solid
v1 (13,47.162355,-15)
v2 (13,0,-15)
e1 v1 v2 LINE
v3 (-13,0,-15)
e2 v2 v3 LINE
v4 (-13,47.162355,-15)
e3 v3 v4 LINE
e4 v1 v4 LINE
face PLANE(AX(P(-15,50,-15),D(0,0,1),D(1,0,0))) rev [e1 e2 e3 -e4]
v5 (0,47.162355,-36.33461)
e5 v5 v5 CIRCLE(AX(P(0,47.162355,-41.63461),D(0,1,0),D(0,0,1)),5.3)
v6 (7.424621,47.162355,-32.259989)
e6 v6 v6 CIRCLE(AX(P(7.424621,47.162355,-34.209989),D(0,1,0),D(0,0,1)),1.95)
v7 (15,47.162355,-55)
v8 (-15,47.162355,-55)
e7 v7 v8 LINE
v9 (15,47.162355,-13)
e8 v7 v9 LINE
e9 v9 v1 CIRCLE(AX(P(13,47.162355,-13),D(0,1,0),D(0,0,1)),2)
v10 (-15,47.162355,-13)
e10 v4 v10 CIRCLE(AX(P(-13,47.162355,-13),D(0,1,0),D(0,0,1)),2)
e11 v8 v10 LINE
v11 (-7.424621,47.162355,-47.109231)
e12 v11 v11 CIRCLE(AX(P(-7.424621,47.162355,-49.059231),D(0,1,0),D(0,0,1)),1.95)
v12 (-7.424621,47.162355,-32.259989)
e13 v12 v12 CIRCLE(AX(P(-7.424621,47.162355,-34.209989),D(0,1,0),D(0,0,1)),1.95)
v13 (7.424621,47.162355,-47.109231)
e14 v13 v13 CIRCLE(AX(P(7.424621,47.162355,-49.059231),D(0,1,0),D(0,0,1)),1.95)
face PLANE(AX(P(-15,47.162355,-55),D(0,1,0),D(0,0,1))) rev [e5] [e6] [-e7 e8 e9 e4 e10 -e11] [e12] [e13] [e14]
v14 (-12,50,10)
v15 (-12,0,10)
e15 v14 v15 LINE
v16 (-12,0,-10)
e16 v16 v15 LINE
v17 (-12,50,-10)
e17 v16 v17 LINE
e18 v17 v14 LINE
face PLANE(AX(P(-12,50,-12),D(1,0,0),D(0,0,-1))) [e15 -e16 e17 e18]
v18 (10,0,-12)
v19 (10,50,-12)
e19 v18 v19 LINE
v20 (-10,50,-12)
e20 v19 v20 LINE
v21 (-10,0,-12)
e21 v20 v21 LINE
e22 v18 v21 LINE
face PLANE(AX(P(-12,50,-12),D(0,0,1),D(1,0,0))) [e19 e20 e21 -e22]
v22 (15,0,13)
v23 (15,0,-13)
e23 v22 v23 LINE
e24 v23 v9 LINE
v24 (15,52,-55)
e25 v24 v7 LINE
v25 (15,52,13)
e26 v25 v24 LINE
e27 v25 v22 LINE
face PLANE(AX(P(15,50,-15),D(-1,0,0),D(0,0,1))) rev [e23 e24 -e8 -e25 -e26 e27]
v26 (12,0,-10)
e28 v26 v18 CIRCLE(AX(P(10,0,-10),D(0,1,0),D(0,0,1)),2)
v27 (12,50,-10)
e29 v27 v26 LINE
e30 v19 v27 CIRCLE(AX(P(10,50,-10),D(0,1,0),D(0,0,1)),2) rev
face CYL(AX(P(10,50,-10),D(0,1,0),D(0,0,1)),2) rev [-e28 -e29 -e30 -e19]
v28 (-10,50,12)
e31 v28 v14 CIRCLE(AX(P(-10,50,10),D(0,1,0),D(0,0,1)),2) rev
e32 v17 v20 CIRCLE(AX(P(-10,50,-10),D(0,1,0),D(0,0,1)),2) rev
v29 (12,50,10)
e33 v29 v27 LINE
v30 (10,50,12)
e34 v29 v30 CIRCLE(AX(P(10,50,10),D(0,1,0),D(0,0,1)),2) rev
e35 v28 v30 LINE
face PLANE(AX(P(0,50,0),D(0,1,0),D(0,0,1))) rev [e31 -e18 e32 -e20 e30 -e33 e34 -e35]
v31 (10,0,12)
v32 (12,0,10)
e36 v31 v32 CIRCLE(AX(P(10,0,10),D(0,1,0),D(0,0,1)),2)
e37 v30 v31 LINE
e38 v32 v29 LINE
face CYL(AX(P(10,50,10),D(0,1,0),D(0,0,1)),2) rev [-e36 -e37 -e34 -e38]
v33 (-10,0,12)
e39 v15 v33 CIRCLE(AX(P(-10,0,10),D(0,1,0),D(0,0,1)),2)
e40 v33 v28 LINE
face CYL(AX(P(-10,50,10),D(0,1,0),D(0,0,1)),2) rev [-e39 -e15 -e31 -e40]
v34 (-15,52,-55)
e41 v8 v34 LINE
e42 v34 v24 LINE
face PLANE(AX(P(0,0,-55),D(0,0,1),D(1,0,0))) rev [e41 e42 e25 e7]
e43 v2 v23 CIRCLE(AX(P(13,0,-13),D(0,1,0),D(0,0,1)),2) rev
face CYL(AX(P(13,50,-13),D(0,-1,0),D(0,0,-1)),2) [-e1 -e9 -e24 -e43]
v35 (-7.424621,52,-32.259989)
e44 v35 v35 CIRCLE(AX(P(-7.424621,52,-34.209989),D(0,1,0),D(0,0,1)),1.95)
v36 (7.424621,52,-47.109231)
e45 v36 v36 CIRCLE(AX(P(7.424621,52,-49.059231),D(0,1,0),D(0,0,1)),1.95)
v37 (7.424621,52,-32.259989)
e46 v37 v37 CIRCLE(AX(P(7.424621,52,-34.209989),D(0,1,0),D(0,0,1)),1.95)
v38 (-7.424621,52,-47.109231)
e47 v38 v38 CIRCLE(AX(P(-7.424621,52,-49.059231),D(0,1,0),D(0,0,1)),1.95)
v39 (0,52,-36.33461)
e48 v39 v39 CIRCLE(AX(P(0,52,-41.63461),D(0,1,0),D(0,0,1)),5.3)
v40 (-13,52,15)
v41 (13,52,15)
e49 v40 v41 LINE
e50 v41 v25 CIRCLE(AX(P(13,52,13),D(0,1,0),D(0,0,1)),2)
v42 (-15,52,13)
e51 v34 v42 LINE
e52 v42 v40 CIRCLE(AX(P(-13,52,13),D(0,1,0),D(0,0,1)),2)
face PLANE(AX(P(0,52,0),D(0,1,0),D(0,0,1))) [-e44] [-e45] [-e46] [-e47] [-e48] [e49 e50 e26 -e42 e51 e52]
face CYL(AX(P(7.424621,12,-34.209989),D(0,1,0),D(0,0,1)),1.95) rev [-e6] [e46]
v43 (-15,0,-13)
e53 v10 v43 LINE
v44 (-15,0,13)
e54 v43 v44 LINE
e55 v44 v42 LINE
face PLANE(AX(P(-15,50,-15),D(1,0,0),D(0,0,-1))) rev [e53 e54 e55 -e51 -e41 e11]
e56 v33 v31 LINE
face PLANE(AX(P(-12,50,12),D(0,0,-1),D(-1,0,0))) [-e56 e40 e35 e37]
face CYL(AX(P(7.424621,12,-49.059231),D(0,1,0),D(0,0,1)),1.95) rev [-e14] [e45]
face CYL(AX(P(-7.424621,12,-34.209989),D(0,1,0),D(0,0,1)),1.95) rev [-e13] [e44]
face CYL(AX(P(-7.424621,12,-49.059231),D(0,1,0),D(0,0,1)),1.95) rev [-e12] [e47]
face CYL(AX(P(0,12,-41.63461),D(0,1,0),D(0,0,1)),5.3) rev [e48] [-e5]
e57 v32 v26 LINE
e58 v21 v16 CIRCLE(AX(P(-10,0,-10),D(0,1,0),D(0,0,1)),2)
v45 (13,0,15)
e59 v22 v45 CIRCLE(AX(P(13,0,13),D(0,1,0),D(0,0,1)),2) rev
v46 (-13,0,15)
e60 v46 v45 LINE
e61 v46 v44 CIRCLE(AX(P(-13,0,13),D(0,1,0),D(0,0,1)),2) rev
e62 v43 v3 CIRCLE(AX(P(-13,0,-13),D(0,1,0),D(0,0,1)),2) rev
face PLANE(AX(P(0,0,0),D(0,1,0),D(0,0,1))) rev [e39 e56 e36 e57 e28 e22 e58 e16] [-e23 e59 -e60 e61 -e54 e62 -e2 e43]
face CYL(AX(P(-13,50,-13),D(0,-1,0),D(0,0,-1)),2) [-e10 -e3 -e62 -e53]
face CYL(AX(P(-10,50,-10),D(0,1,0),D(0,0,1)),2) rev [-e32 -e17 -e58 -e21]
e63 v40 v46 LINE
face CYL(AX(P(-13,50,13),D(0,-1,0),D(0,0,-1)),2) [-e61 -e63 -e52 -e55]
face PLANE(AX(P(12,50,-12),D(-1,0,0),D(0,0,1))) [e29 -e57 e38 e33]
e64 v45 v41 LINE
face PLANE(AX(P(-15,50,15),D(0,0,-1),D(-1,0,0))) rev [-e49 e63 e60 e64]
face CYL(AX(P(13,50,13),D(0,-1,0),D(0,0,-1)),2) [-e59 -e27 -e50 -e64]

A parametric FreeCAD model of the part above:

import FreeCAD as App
import Part
import Sketcher
Q = App.Units.Quantity


def edges_at(feature, points):
    """Names of the edges that pass closest to the given points."""
    edges = feature.Shape.Edges
    near = lambda p: min(range(len(edges)), key=lambda i: edges[i].distToShape(Part.Vertex(*p))[0])
    return sorted({f"Edge{near(p) + 1}" for p in points})

doc = App.newDocument("Part")
body = doc.addObject("PartDesign::Body", "Body")

# Sketch on XZ plane
sketch1 = body.newObject("Sketcher::SketchObject", "Sketch")
sketch1.AttachmentSupport = (doc.getObject("XZ_Plane"), [""])
sketch1.MapMode = "FlatFace"
sketch1.addGeometry(Part.LineSegment(App.Vector(-15, -15, 0), App.Vector(-15, 15, 0)), False)
sketch1.addGeometry(Part.LineSegment(App.Vector(-15, 15, 0), App.Vector(15, 15, 0)), False)
sketch1.addGeometry(Part.LineSegment(App.Vector(15, 15, 0), App.Vector(15, -15, 0)), False)
sketch1.addGeometry(Part.LineSegment(App.Vector(15, -15, 0), App.Vector(-15, -15, 0)), False)
sketch1.addGeometry(Part.LineSegment(App.Vector(12, 12, 0), App.Vector(-12, 12, 0)), False)
sketch1.addGeometry(Part.LineSegment(App.Vector(-12, 12, 0), App.Vector(-12, -12, 0)), False)
sketch1.addGeometry(Part.LineSegment(App.Vector(-12, -12, 0), App.Vector(12, -12, 0)), False)
sketch1.addGeometry(Part.LineSegment(App.Vector(12, -12, 0), App.Vector(12, 12, 0)), False)
sketch1.addConstraint(Sketcher.Constraint("Coincident", 0, 2, 1, 1))
sketch1.addConstraint(Sketcher.Constraint("Coincident", 1, 2, 2, 1))
sketch1.addConstraint(Sketcher.Constraint("Coincident", 2, 2, 3, 1))
sketch1.addConstraint(Sketcher.Constraint("Coincident", 3, 2, 0, 1))
sketch1.addConstraint(Sketcher.Constraint("Coincident", 4, 2, 5, 1))
sketch1.addConstraint(Sketcher.Constraint("Coincident", 5, 2, 6, 1))
sketch1.addConstraint(Sketcher.Constraint("Coincident", 6, 2, 7, 1))
sketch1.addConstraint(Sketcher.Constraint("Coincident", 7, 2, 4, 1))
sketch1.addConstraint(Sketcher.Constraint("Vertical", 0))
sketch1.addConstraint(Sketcher.Constraint("Horizontal", 1))
sketch1.addConstraint(Sketcher.Constraint("Vertical", 2))
sketch1.addConstraint(Sketcher.Constraint("Horizontal", 3))
sketch1.addConstraint(Sketcher.Constraint("Horizontal", 4))
sketch1.addConstraint(Sketcher.Constraint("Vertical", 5))
sketch1.addConstraint(Sketcher.Constraint("Horizontal", 6))
sketch1.addConstraint(Sketcher.Constraint("Vertical", 7))
sketch1.addConstraint(Sketcher.Constraint("Symmetric", 0, 2, 2, 2, -1, 1))
sketch1.addConstraint(Sketcher.Constraint("Symmetric", 4, 2, 6, 2, -1, 1))
sketch1.addConstraint(Sketcher.Constraint("Equal", 3, 0))
sketch1.addConstraint(Sketcher.Constraint("Equal", 6, 5))
sketch1.addConstraint(Sketcher.Constraint("DistanceX", 1, 1, 1, 2, Q("30 mm")))
sketch1.addConstraint(Sketcher.Constraint("DistanceX", 4, 2, 4, 1, Q("24 mm")))
pad1 = body.newObject("PartDesign::Pad", "Pad")
pad1.Profile = sketch1
pad1.Length = 50
pad1.Reversed = True

# Sketch on XZ plane
sketch2 = body.newObject("Sketcher::SketchObject", "Sketch001")
sketch2.AttachmentSupport = (doc.getObject("XZ_Plane"), [""])
sketch2.MapMode = "FlatFace"
sketch2.AttachmentOffset = App.Placement(App.Vector(0, 0, -50), App.Rotation())
sketch2.addGeometry(Part.LineSegment(App.Vector(-15, -15, 0), App.Vector(-15, 15, 0)), False)
sketch2.addGeometry(Part.LineSegment(App.Vector(-15, 15, 0), App.Vector(15, 15, 0)), False)
sketch2.addGeometry(Part.LineSegment(App.Vector(15, 15, 0), App.Vector(15, -15, 0)), False)
sketch2.addGeometry(Part.LineSegment(App.Vector(15, -15, 0), App.Vector(-15, -15, 0)), False)
sketch2.addConstraint(Sketcher.Constraint("Coincident", 0, 2, 1, 1))
sketch2.addConstraint(Sketcher.Constraint("Coincident", 1, 2, 2, 1))
sketch2.addConstraint(Sketcher.Constraint("Coincident", 2, 2, 3, 1))
sketch2.addConstraint(Sketcher.Constraint("Coincident", 3, 2, 0, 1))
sketch2.addConstraint(Sketcher.Constraint("Vertical", 0))
sketch2.addConstraint(Sketcher.Constraint("Horizontal", 1))
sketch2.addConstraint(Sketcher.Constraint("Vertical", 2))
sketch2.addConstraint(Sketcher.Constraint("Horizontal", 3))
sketch2.addConstraint(Sketcher.Constraint("Symmetric", 0, 2, 2, 2, -1, 1))
sketch2.addConstraint(Sketcher.Constraint("Equal", 3, 0))
sketch2.addConstraint(Sketcher.Constraint("DistanceX", 1, 1, 1, 2, Q("30 mm")))
pad2 = body.newObject("PartDesign::Pad", "Pad001")
pad2.Profile = sketch2
pad2.Length = 2
pad2.Reversed = True

# Sketch on XY plane
sketch3 = body.newObject("Sketcher::SketchObject", "Sketch002")
sketch3.AttachmentSupport = (doc.getObject("XY_Plane"), [""])
sketch3.MapMode = "FlatFace"
sketch3.AttachmentOffset = App.Placement(App.Vector(0, 0, -15), App.Rotation())
sketch3.addGeometry(Part.LineSegment(App.Vector(15, 52, 0), App.Vector(15, 47.2, 0)), False)
sketch3.addGeometry(Part.LineSegment(App.Vector(15, 47.2, 0), App.Vector(-15, 47.2, 0)), False)
sketch3.addGeometry(Part.LineSegment(App.Vector(-15, 47.2, 0), App.Vector(-15, 52, 0)), False)
sketch3.addGeometry(Part.LineSegment(App.Vector(-15, 52, 0), App.Vector(15, 52, 0)), False)
sketch3.addConstraint(Sketcher.Constraint("Coincident", 0, 2, 1, 1))
sketch3.addConstraint(Sketcher.Constraint("Coincident", 1, 2, 2, 1))
sketch3.addConstraint(Sketcher.Constraint("Coincident", 2, 2, 3, 1))
sketch3.addConstraint(Sketcher.Constraint("Coincident", 3, 2, 0, 1))
sketch3.addConstraint(Sketcher.Constraint("Vertical", 0))
sketch3.addConstraint(Sketcher.Constraint("Horizontal", 1))
sketch3.addConstraint(Sketcher.Constraint("Vertical", 2))
sketch3.addConstraint(Sketcher.Constraint("Horizontal", 3))
sketch3.addConstraint(Sketcher.Constraint("DistanceX", 1, 2, 1, 1, Q("30 mm")))
sketch3.addConstraint(Sketcher.Constraint("DistanceX", -1, 1, 0, 2, Q("15 mm")))
sketch3.addConstraint(Sketcher.Constraint("DistanceY", -1, 1, 2, 2, Q("52 mm")))
sketch3.addConstraint(Sketcher.Constraint("DistanceY", 0, 2, 0, 1, Q("4.837645 mm")))
pad3 = body.newObject("PartDesign::Pad", "Pad002")
pad3.Profile = sketch3
pad3.Length = 40
pad3.Reversed = True

# Sketch on XZ plane
sketch4 = body.newObject("Sketcher::SketchObject", "Sketch003")
sketch4.AttachmentSupport = (doc.getObject("XZ_Plane"), [""])
sketch4.MapMode = "FlatFace"
sketch4.AttachmentOffset = App.Placement(App.Vector(0, 0, -52), App.Rotation())
sketch4.addGeometry(Part.Circle(App.Vector(0, -41.6, 0), App.Vector(0, 0, 1), 5.3), False)
sketch4.addGeometry(Part.Circle(App.Vector(7.4, -49.1, 0), App.Vector(0, 0, 1), 1.9), False)
sketch4.addGeometry(Part.Circle(App.Vector(7.4, -34.2, 0), App.Vector(0, 0, 1), 1.9), False)
sketch4.addGeometry(Part.Circle(App.Vector(-7.4, -34.2, 0), App.Vector(0, 0, 1), 1.9), False)
sketch4.addGeometry(Part.Circle(App.Vector(-7.4, -49.1, 0), App.Vector(0, 0, 1), 1.9), False)
sketch4.addConstraint(Sketcher.Constraint("Equal", 1, 2))
sketch4.addConstraint(Sketcher.Constraint("Equal", 2, 3))
sketch4.addConstraint(Sketcher.Constraint("Equal", 3, 4))
sketch4.addConstraint(Sketcher.Constraint("Symmetric", 2, 3, 3, 3, -2))
sketch4.addConstraint(Sketcher.Constraint("Symmetric", 1, 3, 4, 3, -2))
sketch4.addConstraint(Sketcher.Constraint("PointOnObject", 0, 3, -2))
sketch4.addConstraint(Sketcher.Constraint("Vertical", 1, 3, 2, 3))
sketch4.addConstraint(Sketcher.Constraint("Diameter", 0, Q("10.6 mm")))
sketch4.addConstraint(Sketcher.Constraint("Diameter", 1, Q("3.9 mm")))
sketch4.addConstraint(Sketcher.Constraint("DistanceY", 0, 3, -1, 1, Q("41.63461 mm")))
sketch4.addConstraint(Sketcher.Constraint("DistanceX", -1, 1, 1, 3, Q("7.424621 mm")))
sketch4.addConstraint(Sketcher.Constraint("DistanceY", 1, 3, -1, 1, Q("49.059231 mm")))
sketch4.addConstraint(Sketcher.Constraint("DistanceY", 2, 3, -1, 1, Q("34.209989 mm")))
pocket1 = body.newObject("PartDesign::Pocket", "Pocket")
pocket1.Profile = sketch4
pocket1.Length = 40
pocket1.Reversed = True
doc.recompute()

fillet = body.newObject("PartDesign::Fillet", "Fillet")
fillet.Base = (pocket1, edges_at(pocket1, [
    (-15, 26, 15),
    (15, 26, 15),
    (15, 23.581, -15),
    (-15, 23.581, -15),
    (-12, 25, 12),
    (-12, 25, -12),
    (12, 25, 12),
    (12, 25, -12),
]))
fillet.Radius = 2

doc.recompute()
